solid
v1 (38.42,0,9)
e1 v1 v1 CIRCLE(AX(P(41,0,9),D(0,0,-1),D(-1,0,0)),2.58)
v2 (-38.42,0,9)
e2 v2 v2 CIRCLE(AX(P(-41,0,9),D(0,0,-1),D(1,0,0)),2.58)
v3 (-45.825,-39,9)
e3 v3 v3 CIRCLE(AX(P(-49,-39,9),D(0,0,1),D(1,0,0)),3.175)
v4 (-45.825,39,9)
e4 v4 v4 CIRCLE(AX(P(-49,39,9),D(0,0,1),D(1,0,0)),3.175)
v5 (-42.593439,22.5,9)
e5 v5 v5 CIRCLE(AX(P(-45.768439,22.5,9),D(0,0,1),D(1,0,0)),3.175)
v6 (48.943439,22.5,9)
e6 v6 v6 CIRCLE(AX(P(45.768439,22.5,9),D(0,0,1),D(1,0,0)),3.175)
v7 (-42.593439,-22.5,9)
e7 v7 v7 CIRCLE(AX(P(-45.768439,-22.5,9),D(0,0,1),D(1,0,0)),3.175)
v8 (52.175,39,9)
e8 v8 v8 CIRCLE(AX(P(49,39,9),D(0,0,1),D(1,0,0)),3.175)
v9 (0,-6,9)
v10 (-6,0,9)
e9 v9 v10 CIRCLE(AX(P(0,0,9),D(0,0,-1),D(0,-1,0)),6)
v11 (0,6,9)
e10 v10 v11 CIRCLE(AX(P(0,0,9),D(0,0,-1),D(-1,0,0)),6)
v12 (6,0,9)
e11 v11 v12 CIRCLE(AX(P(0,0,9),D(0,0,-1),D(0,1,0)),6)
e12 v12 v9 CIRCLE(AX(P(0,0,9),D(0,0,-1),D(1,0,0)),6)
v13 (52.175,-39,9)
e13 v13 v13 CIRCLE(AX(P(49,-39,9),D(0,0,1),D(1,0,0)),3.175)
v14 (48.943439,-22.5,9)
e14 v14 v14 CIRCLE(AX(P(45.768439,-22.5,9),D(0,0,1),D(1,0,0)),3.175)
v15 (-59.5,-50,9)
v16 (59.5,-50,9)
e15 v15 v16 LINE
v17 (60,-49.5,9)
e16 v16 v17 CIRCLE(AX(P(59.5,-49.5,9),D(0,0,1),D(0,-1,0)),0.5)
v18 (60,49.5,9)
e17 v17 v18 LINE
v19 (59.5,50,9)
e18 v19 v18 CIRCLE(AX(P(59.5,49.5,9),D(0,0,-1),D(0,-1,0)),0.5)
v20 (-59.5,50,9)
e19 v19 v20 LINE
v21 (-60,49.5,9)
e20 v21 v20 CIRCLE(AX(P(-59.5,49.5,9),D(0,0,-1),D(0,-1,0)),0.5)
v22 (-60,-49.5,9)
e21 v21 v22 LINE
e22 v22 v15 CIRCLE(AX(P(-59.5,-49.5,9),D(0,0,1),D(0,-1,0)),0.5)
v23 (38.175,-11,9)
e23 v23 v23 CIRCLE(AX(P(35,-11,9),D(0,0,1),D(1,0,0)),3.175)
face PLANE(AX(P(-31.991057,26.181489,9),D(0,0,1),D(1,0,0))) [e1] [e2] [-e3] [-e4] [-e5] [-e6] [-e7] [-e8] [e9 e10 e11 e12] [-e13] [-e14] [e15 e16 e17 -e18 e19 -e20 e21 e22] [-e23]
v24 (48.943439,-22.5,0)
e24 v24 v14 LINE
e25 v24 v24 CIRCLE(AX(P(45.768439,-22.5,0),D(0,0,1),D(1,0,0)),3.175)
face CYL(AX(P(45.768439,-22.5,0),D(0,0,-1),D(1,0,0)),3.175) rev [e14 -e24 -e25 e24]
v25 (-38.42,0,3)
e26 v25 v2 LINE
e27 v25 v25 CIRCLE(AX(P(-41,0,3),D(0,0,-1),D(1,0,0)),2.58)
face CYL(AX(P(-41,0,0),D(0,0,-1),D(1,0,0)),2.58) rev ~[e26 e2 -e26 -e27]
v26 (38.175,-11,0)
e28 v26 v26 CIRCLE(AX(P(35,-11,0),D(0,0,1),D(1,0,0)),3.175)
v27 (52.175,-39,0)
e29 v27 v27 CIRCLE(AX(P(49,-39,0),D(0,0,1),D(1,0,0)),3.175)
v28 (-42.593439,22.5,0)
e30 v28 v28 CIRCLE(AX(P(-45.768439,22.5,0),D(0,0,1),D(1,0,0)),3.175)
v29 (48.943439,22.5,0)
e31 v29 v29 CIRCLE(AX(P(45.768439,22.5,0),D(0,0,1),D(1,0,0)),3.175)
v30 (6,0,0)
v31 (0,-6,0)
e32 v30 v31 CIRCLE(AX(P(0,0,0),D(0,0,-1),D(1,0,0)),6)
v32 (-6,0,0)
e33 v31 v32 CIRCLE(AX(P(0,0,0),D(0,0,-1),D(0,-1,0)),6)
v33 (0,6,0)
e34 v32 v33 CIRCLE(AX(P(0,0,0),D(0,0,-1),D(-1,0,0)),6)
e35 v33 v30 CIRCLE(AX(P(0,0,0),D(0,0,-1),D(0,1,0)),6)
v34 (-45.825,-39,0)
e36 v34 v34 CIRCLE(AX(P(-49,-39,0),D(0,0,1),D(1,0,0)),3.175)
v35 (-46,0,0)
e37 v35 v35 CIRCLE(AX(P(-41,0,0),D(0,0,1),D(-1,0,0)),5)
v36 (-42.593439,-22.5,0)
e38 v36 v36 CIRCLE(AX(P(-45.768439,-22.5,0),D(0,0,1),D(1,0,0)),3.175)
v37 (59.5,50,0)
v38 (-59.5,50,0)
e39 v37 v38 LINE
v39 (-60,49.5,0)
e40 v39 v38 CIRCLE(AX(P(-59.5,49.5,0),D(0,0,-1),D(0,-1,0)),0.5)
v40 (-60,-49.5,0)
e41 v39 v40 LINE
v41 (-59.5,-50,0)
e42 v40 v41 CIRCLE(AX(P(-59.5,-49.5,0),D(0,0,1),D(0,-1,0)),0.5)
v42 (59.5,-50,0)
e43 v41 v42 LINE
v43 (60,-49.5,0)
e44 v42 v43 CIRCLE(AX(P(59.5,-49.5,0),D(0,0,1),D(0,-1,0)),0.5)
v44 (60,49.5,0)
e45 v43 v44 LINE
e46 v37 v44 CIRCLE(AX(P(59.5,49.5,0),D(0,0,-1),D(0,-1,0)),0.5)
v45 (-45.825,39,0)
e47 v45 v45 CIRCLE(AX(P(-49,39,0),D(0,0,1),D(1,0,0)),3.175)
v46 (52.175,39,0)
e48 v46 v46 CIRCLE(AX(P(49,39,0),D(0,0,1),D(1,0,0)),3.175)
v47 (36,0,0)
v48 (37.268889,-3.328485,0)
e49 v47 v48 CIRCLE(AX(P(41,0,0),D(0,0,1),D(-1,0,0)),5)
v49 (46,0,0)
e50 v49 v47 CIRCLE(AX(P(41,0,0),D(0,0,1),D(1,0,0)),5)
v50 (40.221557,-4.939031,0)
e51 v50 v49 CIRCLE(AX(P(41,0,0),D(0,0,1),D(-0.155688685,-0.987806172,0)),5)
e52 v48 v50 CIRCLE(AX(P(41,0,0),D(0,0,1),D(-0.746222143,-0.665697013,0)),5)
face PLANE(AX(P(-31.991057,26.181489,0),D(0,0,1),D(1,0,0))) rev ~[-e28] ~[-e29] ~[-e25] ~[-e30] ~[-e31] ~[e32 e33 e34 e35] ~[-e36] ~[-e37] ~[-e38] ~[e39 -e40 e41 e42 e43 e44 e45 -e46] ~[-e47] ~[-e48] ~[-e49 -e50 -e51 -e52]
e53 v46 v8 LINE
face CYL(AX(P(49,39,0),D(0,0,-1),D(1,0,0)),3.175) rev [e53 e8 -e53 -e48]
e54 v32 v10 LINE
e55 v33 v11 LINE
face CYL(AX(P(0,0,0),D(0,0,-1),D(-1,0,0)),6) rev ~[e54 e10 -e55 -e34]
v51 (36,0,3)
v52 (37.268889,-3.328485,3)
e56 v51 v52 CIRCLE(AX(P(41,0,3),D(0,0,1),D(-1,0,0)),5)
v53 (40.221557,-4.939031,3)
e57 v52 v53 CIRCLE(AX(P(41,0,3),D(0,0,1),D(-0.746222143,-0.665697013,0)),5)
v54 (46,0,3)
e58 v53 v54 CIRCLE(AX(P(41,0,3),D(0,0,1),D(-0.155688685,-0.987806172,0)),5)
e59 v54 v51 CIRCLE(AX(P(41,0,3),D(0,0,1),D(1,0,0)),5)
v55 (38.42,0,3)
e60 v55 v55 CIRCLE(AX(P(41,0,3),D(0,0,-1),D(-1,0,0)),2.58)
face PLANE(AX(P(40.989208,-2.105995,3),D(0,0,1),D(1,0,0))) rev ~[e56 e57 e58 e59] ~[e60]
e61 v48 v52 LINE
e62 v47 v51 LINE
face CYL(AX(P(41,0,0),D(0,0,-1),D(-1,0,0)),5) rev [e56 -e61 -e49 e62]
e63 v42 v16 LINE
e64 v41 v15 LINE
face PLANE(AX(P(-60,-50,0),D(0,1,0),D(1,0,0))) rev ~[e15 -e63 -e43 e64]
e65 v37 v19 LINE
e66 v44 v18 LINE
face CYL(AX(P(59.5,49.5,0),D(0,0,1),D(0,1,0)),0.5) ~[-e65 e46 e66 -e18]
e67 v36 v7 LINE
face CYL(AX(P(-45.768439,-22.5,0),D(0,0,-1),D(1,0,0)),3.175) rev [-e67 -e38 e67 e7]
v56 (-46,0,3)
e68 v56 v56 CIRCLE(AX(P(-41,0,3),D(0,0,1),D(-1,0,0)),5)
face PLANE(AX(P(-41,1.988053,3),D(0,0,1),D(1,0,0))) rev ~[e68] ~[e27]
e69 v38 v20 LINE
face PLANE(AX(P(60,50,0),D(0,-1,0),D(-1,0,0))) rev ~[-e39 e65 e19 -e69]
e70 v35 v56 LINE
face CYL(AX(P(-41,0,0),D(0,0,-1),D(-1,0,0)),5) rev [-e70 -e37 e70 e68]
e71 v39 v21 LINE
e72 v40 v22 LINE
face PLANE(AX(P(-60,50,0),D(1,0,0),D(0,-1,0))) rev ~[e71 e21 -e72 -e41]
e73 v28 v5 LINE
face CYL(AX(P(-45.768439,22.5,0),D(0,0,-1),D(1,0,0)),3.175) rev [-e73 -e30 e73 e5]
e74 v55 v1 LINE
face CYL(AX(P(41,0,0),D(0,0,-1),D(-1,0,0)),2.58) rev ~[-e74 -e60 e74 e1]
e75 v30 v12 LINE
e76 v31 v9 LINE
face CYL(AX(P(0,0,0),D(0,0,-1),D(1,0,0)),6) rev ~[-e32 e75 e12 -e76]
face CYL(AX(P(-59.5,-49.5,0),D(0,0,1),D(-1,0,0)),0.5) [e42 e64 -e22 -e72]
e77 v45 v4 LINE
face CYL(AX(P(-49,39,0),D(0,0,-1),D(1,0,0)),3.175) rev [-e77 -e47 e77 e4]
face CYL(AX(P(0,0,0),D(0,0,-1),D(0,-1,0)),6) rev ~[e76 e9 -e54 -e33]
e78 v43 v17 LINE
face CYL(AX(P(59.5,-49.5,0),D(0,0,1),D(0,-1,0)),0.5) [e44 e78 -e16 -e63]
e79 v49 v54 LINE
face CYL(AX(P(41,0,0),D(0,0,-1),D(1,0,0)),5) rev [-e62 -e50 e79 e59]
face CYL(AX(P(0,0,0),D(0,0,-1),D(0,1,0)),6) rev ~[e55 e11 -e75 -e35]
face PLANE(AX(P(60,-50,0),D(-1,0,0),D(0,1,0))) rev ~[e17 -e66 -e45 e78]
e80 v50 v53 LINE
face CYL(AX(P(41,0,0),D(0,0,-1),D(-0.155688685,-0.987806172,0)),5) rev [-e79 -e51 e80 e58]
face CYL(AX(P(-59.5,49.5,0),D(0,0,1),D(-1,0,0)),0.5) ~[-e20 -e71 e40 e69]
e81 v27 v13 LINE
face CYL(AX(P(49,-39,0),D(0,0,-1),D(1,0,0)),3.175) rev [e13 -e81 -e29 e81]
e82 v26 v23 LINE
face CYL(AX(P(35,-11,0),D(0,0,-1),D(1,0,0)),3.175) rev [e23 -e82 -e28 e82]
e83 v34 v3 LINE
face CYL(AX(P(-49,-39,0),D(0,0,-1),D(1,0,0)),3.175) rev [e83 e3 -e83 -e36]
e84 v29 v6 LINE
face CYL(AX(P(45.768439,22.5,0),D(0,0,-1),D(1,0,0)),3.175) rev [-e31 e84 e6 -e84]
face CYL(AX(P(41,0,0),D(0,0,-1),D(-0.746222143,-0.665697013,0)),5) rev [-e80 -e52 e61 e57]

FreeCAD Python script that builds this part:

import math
import FreeCAD as App
import Part
import Sketcher


def edges_at(feature, points):
    """Names of the edges that pass closest to the given points."""
    edges = feature.Shape.Edges
    near = lambda p: min(range(len(edges)), key=lambda i: edges[i].distToShape(Part.Vertex(*p))[0])
    return sorted({f"Edge{near(p) + 1}" for p in points})

doc = App.newDocument("Part")
body = doc.addObject("PartDesign::Body", "Body")

# Sketch on XY plane
sketch1 = doc.addObject("Sketcher::SketchObject", "Sketch")
body.addObject(sketch1)
sketch1.AttachmentSupport = (doc.XY_Plane, [""])
sketch1.MapMode = "FlatFace"
sketch1.addGeometry([
    Part.LineSegment(App.Vector(-60, 50, 0), App.Vector(-60, -50, 0)),  # 0
    Part.LineSegment(App.Vector(-60, -50, 0), App.Vector(60, -50, 0)),  # 1
    Part.LineSegment(App.Vector(60, -50, 0), App.Vector(60, 50, 0)),  # 2
    Part.LineSegment(App.Vector(60, 50, 0), App.Vector(-60, 50, 0)),  # 3
    Part.Circle(App.Vector(-49, -39, 0), App.Vector(0, 0, 1), 3.2),  # 4
    Part.Circle(App.Vector(-45.8, -22.5, 0), App.Vector(0, 0, 1), 3.2),  # 5
    Part.Circle(App.Vector(49, -39, 0), App.Vector(0, 0, 1), 3.2),  # 6
    Part.Circle(App.Vector(45.8, -22.5, 0), App.Vector(0, 0, 1), 3.2),  # 7
    Part.Circle(App.Vector(35, -11, 0), App.Vector(0, 0, 1), 3.2),  # 8
    Part.Circle(App.Vector(-41, 0, 0), App.Vector(0, 0, 1), 2.6),  # 9
    Part.ArcOfCircle(Part.Circle(App.Vector(0, 0, 0), App.Vector(0, 0, 1), 6), math.radians(90), math.radians(180)),  # 10
    Part.ArcOfCircle(Part.Circle(App.Vector(0, 0, 0), App.Vector(0, 0, 1), 6), math.radians(0), math.radians(90)),  # 11
    Part.ArcOfCircle(Part.Circle(App.Vector(0, 0, 0), App.Vector(0, 0, 1), 6), math.radians(-90), math.radians(0)),  # 12
    Part.ArcOfCircle(Part.Circle(App.Vector(0, 0, 0), App.Vector(0, 0, 1), 6), math.radians(180), math.radians(270)),  # 13
    Part.Circle(App.Vector(-45.8, 22.5, 0), App.Vector(0, 0, 1), 3.2),  # 14
    Part.Circle(App.Vector(-49, 39, 0), App.Vector(0, 0, 1), 3.2),  # 15
    Part.Circle(App.Vector(41, 0, 0), App.Vector(0, 0, 1), 2.6),  # 16
    Part.Circle(App.Vector(45.8, 22.5, 0), App.Vector(0, 0, 1), 3.2),  # 17
    Part.Circle(App.Vector(49, 39, 0), App.Vector(0, 0, 1), 3.2),  # 18
], False)
sketch1.addConstraint([
    Sketcher.Constraint("Coincident", 0, 2, 1, 1),
    Sketcher.Constraint("Coincident", 1, 2, 2, 1),
    Sketcher.Constraint("Coincident", 2, 2, 3, 1),
    Sketcher.Constraint("Coincident", 3, 2, 0, 1),
    Sketcher.Constraint("Tangent", 10, 1, 11, 2),
    Sketcher.Constraint("Tangent", 11, 1, 12, 2),
    Sketcher.Constraint("Tangent", 12, 1, 13, 2),
    Sketcher.Constraint("Tangent", 13, 1, 10, 2),
    Sketcher.Constraint("Vertical", 0),
    Sketcher.Constraint("Horizontal", 1),
    Sketcher.Constraint("Vertical", 2),
    Sketcher.Constraint("Horizontal", 3),
    Sketcher.Constraint("Coincident", 10, 3, -1, 1),
    Sketcher.Constraint("Equal", 4, 5),
    Sketcher.Constraint("Equal", 5, 6),
    Sketcher.Constraint("Equal", 6, 7),
    Sketcher.Constraint("Equal", 7, 8),
    Sketcher.Constraint("Equal", 10, 11),
    Sketcher.Constraint("Equal", 8, 14),
    Sketcher.Constraint("Equal", 14, 15),
    Sketcher.Constraint("Equal", 9, 16),
    Sketcher.Constraint("Equal", 15, 17),
    Sketcher.Constraint("Equal", 17, 18),
    Sketcher.Constraint("Symmetric", 7, 3, 14, 3, -1, 1),
    Sketcher.Constraint("Symmetric", 6, 3, 15, 3, -1, 1),
    Sketcher.Constraint("Symmetric", 9, 3, 16, 3, -1, 1),
    Sketcher.Constraint("Symmetric", 5, 3, 17, 3, -1, 1),
    Sketcher.Constraint("Symmetric", 4, 3, 18, 3, -1, 1),
    Sketcher.Constraint("Symmetric", 0, 2, 2, 2, -1, 1),
    Sketcher.Constraint("Symmetric", 4, 3, 6, 3, -2),
    Sketcher.Constraint("Symmetric", 5, 3, 7, 3, -2),
    Sketcher.Constraint("PointOnObject", 9, 3, -1),
    Sketcher.Constraint("PointOnObject", 10, 1, -2),
    Sketcher.Constraint("PointOnObject", 11, 1, -1),
    Sketcher.Constraint("PointOnObject", 12, 1, -2),
    Sketcher.Constraint("PointOnObject", 13, 1, -1),
    Sketcher.Constraint("Radius", 10, 6.0),
    Sketcher.Constraint("Diameter", 4, 6.35),
    Sketcher.Constraint("Diameter", 9, 5.16),
    Sketcher.Constraint("DistanceX", 1, 1, 1, 2, 120.0),
    Sketcher.Constraint("DistanceY", 0, 2, 0, 1, 100.0),
    Sketcher.Constraint("DistanceX", 4, 3, -1, 1, 49.0),
    Sketcher.Constraint("DistanceY", 4, 3, -1, 1, 39.0),
    Sketcher.Constraint("DistanceX", -1, 1, 8, 3, 35.0),
    Sketcher.Constraint("DistanceY", 8, 3, -1, 1, 11.0),
    Sketcher.Constraint("DistanceX", 9, 3, -1, 1, 41.0),
    Sketcher.Constraint("DistanceY", 5, 3, 14, 3, 45.0),
    Sketcher.Constraint("DistanceX", 5, 3, -1, 1, 45.768439),
])
pad1 = doc.addObject("PartDesign::Pad", "Pad")
body.addObject(pad1)
pad1.Profile = sketch1
pad1.Length = 9
body2 = doc.addObject("PartDesign::Body", "Body001")

# Sketch on XY plane
sketch2 = doc.addObject("Sketcher::SketchObject", "Sketch001")
body2.addObject(sketch2)
sketch2.AttachmentSupport = (doc.getObject("XY_Plane001"), [""])
sketch2.MapMode = "FlatFace"
sketch2.addGeometry([
    Part.ArcOfCircle(Part.Circle(App.Vector(41, 0, 0), App.Vector(0, 0, 1), 5), math.radians(180), math.radians(222)),  # 0
    Part.ArcOfCircle(Part.Circle(App.Vector(41, 0, 0), App.Vector(0, 0, 1), 5), math.radians(-138), math.radians(-99)),  # 1
    Part.ArcOfCircle(Part.Circle(App.Vector(41, 0, 0), App.Vector(0, 0, 1), 5), math.radians(-99), math.radians(0)),  # 2
    Part.ArcOfCircle(Part.Circle(App.Vector(41, 0, 0), App.Vector(0, 0, 1), 5), math.radians(0), math.radians(180)),  # 3
    Part.Circle(App.Vector(41, 0, 0), App.Vector(0, 0, 1), 2.6),  # 4
], False)
sketch2.addConstraint([
    Sketcher.Constraint("Tangent", 0, 2, 1, 1),
    Sketcher.Constraint("Tangent", 1, 2, 2, 1),
    Sketcher.Constraint("Tangent", 2, 2, 3, 1),
    Sketcher.Constraint("Tangent", 3, 2, 0, 1),
    Sketcher.Constraint("Coincident", 4, 3, 0, 3),
    Sketcher.Constraint("Equal", 0, 1),
    Sketcher.Constraint("PointOnObject", 0, 3, -1),
    Sketcher.Constraint("PointOnObject", 2, 2, -1),
    Sketcher.Constraint("PointOnObject", 3, 2, -1),
    Sketcher.Constraint("Radius", 0, 5.0),
    Sketcher.Constraint("Diameter", 4, 5.16),
    Sketcher.Constraint("DistanceX", -1, 1, 0, 3, 41.0),
    Sketcher.Constraint("DistanceX", -1, 1, 0, 2, 37.268889),
    Sketcher.Constraint("DistanceY", 1, 2, -1, 1, 4.939031),
])
pad2 = doc.addObject("PartDesign::Pad", "Pad001")
body2.addObject(pad2)
pad2.Profile = sketch2
pad2.Length = 3
body3 = doc.addObject("PartDesign::Body", "Body002")

# Sketch on XY plane
sketch3 = doc.addObject("Sketcher::SketchObject", "Sketch002")
body3.addObject(sketch3)
sketch3.AttachmentSupport = (doc.getObject("XY_Plane002"), [""])
sketch3.MapMode = "FlatFace"
sketch3.addGeometry([
    Part.Circle(App.Vector(-41, 0, 0), App.Vector(0, 0, 1), 5),
    Part.Circle(App.Vector(-41, 0, 0), App.Vector(0, 0, 1), 2.6),
], False)
sketch3.addConstraint([
    Sketcher.Constraint("Coincident", 1, 3, 0, 3),
    Sketcher.Constraint("PointOnObject", 0, 3, -1),
    Sketcher.Constraint("Diameter", 0, 10.0),
    Sketcher.Constraint("Diameter", 1, 5.16),
    Sketcher.Constraint("DistanceX", 0, 3, -1, 1, 41.0),
])
pad3 = doc.addObject("PartDesign::Pad", "Pad002")
body3.addObject(pad3)
pad3.Profile = sketch3
pad3.Length = 3
doc.recompute()

boolean = doc.addObject("PartDesign::Boolean", "Boolean")
body.addObject(boolean)
boolean.Type = "Cut"
boolean.addObjects([body3])
doc.recompute()

boolean2 = doc.addObject("PartDesign::Boolean", "Boolean001")
body.addObject(boolean2)
boolean2.Type = "Cut"
boolean2.addObjects([body2])
doc.recompute()

fillet = doc.addObject("PartDesign::Fillet", "Fillet")
body.addObject(fillet)
fillet.Base = (boolean2, edges_at(boolean2, [
    (60, 50, 4.5),
    (60, -50, 4.5),
    (-60, 50, 4.5),
    (-60, -50, 4.5),
]))
fillet.Radius = 0.5

doc.recompute()
